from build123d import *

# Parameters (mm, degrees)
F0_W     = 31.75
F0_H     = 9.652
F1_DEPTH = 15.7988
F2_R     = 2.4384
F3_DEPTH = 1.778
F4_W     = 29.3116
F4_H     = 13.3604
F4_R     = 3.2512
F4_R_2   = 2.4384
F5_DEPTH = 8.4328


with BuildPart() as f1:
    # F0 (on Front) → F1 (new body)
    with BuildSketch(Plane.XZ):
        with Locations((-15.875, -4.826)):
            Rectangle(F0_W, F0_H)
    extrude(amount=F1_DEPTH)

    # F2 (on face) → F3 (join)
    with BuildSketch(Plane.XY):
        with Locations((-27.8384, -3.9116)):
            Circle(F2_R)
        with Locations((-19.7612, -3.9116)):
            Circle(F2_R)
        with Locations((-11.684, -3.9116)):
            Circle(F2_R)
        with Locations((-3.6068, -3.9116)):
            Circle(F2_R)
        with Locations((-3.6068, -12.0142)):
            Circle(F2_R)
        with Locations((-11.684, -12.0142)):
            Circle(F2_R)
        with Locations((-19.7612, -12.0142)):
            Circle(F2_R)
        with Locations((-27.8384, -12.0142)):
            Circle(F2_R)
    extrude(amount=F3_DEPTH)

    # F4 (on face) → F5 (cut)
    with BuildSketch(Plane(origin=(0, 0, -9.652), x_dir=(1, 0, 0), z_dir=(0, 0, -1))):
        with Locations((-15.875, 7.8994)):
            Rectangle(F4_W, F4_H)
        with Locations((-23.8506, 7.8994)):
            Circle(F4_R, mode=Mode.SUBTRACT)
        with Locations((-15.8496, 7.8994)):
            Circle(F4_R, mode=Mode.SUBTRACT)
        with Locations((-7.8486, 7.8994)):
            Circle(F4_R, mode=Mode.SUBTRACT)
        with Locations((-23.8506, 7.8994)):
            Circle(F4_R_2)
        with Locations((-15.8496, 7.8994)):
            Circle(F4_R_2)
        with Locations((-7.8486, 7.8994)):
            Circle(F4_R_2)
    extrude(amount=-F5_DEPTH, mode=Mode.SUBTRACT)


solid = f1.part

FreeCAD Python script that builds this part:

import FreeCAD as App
import Part
import Sketcher

V = App.Vector
Q = App.Units.Quantity


def add_polygon(sketch, points):
    """Adds a closed chain of lines whose ends are joined by coincident constraints."""
    first, n = sketch.GeometryCount, len(points)
    for a, b in zip(points, points[1:] + points[:1]):
        sketch.addGeometry(Part.LineSegment(App.Vector(*a, 0), App.Vector(*b, 0)), False)
    for i in range(n):
        sketch.addConstraint(Sketcher.Constraint("Coincident", first + i, 2, first + (i + 1) % n, 1))

doc = App.newDocument("Part")
body = doc.addObject("PartDesign::Body", "Body")

# Sketch on XZ plane
sketch1 = doc.addObject("Sketcher::SketchObject", "Sketch")
body.addObject(sketch1)
sketch1.AttachmentSupport = (doc.XZ_Plane, [""])
sketch1.MapMode = "FlatFace"
add_polygon(sketch1, [(-32, 0), (-32, -10), (0, -10), (0, 0)])  # lines 0-3
sketch1.addConstraint(Sketcher.Constraint("Vertical", 0))
sketch1.addConstraint(Sketcher.Constraint("Horizontal", 1))
sketch1.addConstraint(Sketcher.Constraint("Vertical", 2))
sketch1.addConstraint(Sketcher.Constraint("Horizontal", 3))
sketch1.addConstraint(Sketcher.Constraint("Coincident", 2, 2, -1, 1))
sketch1.addConstraint(Sketcher.Constraint("DistanceX", 1, 1, 1, 2, Q("1.25 in")))
sketch1.addConstraint(Sketcher.Constraint("DistanceY", 0, 2, 0, 1, Q("0.38 in")))
pad1 = doc.addObject("PartDesign::Pad", "Pad")
body.addObject(pad1)
pad1.Profile = sketch1
pad1.Length = Q("0.622 in")

# Sketch on XY plane
sketch2 = doc.addObject("Sketcher::SketchObject", "Sketch001")
body.addObject(sketch2)
sketch2.AttachmentSupport = (doc.XY_Plane, [""])
sketch2.MapMode = "FlatFace"
sketch2.addGeometry(Part.Circle(V(-27.8, -3.9, 0), V(0, 0, 1), 2.4), False)
sketch2.addGeometry(Part.Circle(V(-19.8, -3.9, 0), V(0, 0, 1), 2.4), False)
sketch2.addGeometry(Part.Circle(V(-11.7, -3.9, 0), V(0, 0, 1), 2.4), False)
sketch2.addGeometry(Part.Circle(V(-3.6, -3.9, 0), V(0, 0, 1), 2.4), False)
sketch2.addGeometry(Part.Circle(V(-3.6, -12, 0), V(0, 0, 1), 2.4), False)
sketch2.addGeometry(Part.Circle(V(-11.7, -12, 0), V(0, 0, 1), 2.4), False)
sketch2.addGeometry(Part.Circle(V(-19.8, -12, 0), V(0, 0, 1), 2.4), False)
sketch2.addGeometry(Part.Circle(V(-27.8, -12, 0), V(0, 0, 1), 2.4), False)
sketch2.addConstraint(Sketcher.Constraint("Equal", 0, 1))
sketch2.addConstraint(Sketcher.Constraint("Equal", 1, 2))
sketch2.addConstraint(Sketcher.Constraint("Equal", 2, 3))
sketch2.addConstraint(Sketcher.Constraint("Equal", 3, 4))
sketch2.addConstraint(Sketcher.Constraint("Equal", 4, 5))
sketch2.addConstraint(Sketcher.Constraint("Equal", 5, 6))
sketch2.addConstraint(Sketcher.Constraint("Equal", 6, 7))
sketch2.addConstraint(Sketcher.Constraint("Horizontal", 0, 3, 1, 3))
sketch2.addConstraint(Sketcher.Constraint("Horizontal", 1, 3, 2, 3))
sketch2.addConstraint(Sketcher.Constraint("Horizontal", 2, 3, 3, 3))
sketch2.addConstraint(Sketcher.Constraint("Horizontal", 4, 3, 5, 3))
sketch2.addConstraint(Sketcher.Constraint("Horizontal", 5, 3, 6, 3))
sketch2.addConstraint(Sketcher.Constraint("Horizontal", 6, 3, 7, 3))
sketch2.addConstraint(Sketcher.Constraint("Vertical", 3, 3, 4, 3))
sketch2.addConstraint(Sketcher.Constraint("Vertical", 2, 3, 5, 3))
sketch2.addConstraint(Sketcher.Constraint("Vertical", 1, 3, 6, 3))
sketch2.addConstraint(Sketcher.Constraint("Vertical", 0, 3, 7, 3))
sketch2.addConstraint(Sketcher.Constraint("Diameter", 0, Q("0.192 in")))
sketch2.addConstraint(Sketcher.Constraint("DistanceX", 2, 3, -1, 1, Q("0.46 in")))
sketch2.addConstraint(Sketcher.Constraint("DistanceX", 0, 3, -1, 1, Q("1.096 in")))
sketch2.addConstraint(Sketcher.Constraint("DistanceY", 0, 3, -1, 1, Q("0.154 in")))
sketch2.addConstraint(Sketcher.Constraint("DistanceX", 1, 3, -1, 1, Q("0.778 in")))
sketch2.addConstraint(Sketcher.Constraint("DistanceX", 3, 3, -1, 1, Q("0.142 in")))
sketch2.addConstraint(Sketcher.Constraint("DistanceY", 4, 3, -1, 1, Q("0.473 in")))
pad2 = doc.addObject("PartDesign::Pad", "Pad001")
body.addObject(pad2)
pad2.Profile = sketch2
pad2.Length = Q("0.07 in")

# Sketch on XY plane
sketch3 = doc.addObject("Sketcher::SketchObject", "Sketch002")
body.addObject(sketch3)
sketch3.AttachmentSupport = (doc.XY_Plane, [""])
sketch3.MapMode = "FlatFace"
sketch3.AttachmentOffset = App.Placement(V(0, 0, -0.38 * 25.4), App.Rotation())
add_polygon(sketch3, [(-30.5, -14.6), (-30.5, -1.2), (-1.2, -1.2), (-1.2, -14.6)])  # lines 0-3
sketch3.addGeometry(Part.Circle(V(-23.9, -7.9, 0), V(0, 0, 1), 3.3), False)  # 4
sketch3.addGeometry(Part.Circle(V(-15.8, -7.9, 0), V(0, 0, 1), 3.3), False)  # 5
sketch3.addGeometry(Part.Circle(V(-7.8, -7.9, 0), V(0, 0, 1), 3.3), False)  # 6
sketch3.addGeometry(Part.Circle(V(-23.9, -7.9, 0), V(0, 0, 1), 2.4), False)  # 7
sketch3.addGeometry(Part.Circle(V(-15.8, -7.9, 0), V(0, 0, 1), 2.4), False)  # 8
sketch3.addGeometry(Part.Circle(V(-7.8, -7.9, 0), V(0, 0, 1), 2.4), False)  # 9
sketch3.addConstraint(Sketcher.Constraint("Vertical", 0))
sketch3.addConstraint(Sketcher.Constraint("Horizontal", 1))
sketch3.addConstraint(Sketcher.Constraint("Vertical", 2))
sketch3.addConstraint(Sketcher.Constraint("Horizontal", 3))
sketch3.addConstraint(Sketcher.Constraint("Coincident", 7, 3, 4, 3))
sketch3.addConstraint(Sketcher.Constraint("Coincident", 8, 3, 5, 3))
sketch3.addConstraint(Sketcher.Constraint("Coincident", 9, 3, 6, 3))
sketch3.addConstraint(Sketcher.Constraint("Equal", 4, 5))
sketch3.addConstraint(Sketcher.Constraint("Equal", 5, 6))
sketch3.addConstraint(Sketcher.Constraint("Equal", 7, 8))
sketch3.addConstraint(Sketcher.Constraint("Equal", 8, 9))
sketch3.addConstraint(Sketcher.Constraint("Horizontal", 4, 3, 5, 3))
sketch3.addConstraint(Sketcher.Constraint("Horizontal", 5, 3, 6, 3))
sketch3.addConstraint(Sketcher.Constraint("Diameter", 4, Q("0.256 in")))
sketch3.addConstraint(Sketcher.Constraint("Diameter", 7, Q("0.192 in")))
sketch3.addConstraint(Sketcher.Constraint("DistanceX", 1, 1, 1, 2, Q("1.154 in")))
sketch3.addConstraint(Sketcher.Constraint("DistanceY", 0, 1, 0, 2, Q("0.526 in")))
sketch3.addConstraint(Sketcher.Constraint("DistanceX", 4, 3, 6, 3, Q("0.63 in")))
sketch3.addConstraint(Sketcher.Constraint("DistanceX", 4, 3, -1, 1, Q("0.939 in")))
sketch3.addConstraint(Sketcher.Constraint("DistanceY", 4, 3, -1, 1, Q("0.311 in")))
sketch3.addConstraint(Sketcher.Constraint("DistanceX", 5, 3, -1, 1, Q("0.624 in")))
sketch3.addConstraint(Sketcher.Constraint("DistanceX", 0, 2, -1, 1, Q("1.202 in")))
sketch3.addConstraint(Sketcher.Constraint("DistanceY", 0, 2, -1, 1, Q("0.048 in")))
pocket1 = doc.addObject("PartDesign::Pocket", "Pocket")
body.addObject(pocket1)
pocket1.Profile = sketch3
pocket1.Length = Q("0.332 in")
pocket1.Reversed = True

doc.recompute()
